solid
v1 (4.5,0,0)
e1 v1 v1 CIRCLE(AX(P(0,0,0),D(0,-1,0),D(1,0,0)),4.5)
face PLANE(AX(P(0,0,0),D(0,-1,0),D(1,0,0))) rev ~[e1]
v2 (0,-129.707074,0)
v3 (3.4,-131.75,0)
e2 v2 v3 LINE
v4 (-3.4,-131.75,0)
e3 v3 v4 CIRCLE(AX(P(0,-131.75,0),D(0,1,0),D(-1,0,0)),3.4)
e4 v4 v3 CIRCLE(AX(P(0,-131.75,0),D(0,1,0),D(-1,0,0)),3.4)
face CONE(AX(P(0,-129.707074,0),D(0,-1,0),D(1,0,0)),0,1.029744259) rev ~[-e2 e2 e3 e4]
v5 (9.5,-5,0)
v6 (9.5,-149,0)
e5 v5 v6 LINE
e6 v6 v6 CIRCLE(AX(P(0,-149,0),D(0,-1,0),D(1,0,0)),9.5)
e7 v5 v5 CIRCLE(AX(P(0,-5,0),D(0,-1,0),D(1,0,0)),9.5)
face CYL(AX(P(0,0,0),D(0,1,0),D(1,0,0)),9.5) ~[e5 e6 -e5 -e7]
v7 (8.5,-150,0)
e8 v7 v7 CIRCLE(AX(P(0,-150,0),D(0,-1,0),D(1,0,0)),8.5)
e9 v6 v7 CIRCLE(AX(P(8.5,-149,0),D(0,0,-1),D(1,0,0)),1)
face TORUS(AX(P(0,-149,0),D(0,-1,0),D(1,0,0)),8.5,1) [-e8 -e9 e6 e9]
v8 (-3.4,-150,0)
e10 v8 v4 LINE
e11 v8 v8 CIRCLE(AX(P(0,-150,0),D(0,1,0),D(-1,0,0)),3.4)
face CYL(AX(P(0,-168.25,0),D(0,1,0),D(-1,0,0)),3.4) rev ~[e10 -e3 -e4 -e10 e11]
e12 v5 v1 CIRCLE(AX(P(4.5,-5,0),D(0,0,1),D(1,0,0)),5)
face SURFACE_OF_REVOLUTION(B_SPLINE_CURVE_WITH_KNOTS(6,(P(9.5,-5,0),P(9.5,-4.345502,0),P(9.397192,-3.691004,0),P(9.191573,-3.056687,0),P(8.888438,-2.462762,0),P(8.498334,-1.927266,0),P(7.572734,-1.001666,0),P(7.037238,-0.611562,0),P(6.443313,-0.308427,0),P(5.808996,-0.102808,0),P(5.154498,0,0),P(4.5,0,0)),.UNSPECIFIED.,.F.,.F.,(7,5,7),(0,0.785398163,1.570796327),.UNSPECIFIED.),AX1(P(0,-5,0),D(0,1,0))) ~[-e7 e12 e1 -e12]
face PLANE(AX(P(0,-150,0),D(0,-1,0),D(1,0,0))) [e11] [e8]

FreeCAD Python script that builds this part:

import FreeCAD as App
import Part
import Sketcher
from FreeCAD import Vector


def edges_at(feature, points):
    """Names of the edges that pass closest to the given points."""
    edges = feature.Shape.Edges
    near = lambda p: min(range(len(edges)), key=lambda i: edges[i].distToShape(Part.Vertex(*p))[0])
    return sorted({f"Edge{near(p) + 1}" for p in points})

doc = App.newDocument("Part")
body = doc.addObject("PartDesign::Body", "Body")

# Sketch on XZ plane
sketch1 = doc.addObject("Sketcher::SketchObject", "Sketch")
body.addObject(sketch1)
sketch1.AttachmentSupport = (doc.XZ_Plane, [""])
sketch1.MapMode = "FlatFace"
sketch1.addGeometry(Part.Circle(Vector(0, 0, 0), Vector(0, 0, 1), 9.5), False)
sketch1.addConstraint(Sketcher.Constraint("Coincident", 0, 3, -1, 1))
sketch1.addConstraint(Sketcher.Constraint("Diameter", 0, 19.0))
pad1 = doc.addObject("PartDesign::Pad", "Pad")
body.addObject(pad1)
pad1.Profile = sketch1
pad1.Length = 150

# Sketch on XZ plane
sketch2 = doc.addObject("Sketcher::SketchObject", "Sketch001")
body.addObject(sketch2)
sketch2.AttachmentSupport = (doc.XZ_Plane, [""])
sketch2.MapMode = "FlatFace"
sketch2.AttachmentOffset = App.Placement(Vector(0, 0, 150), App.Rotation())
sketch2.addGeometry(Part.Circle(Vector(0, 0, 0), Vector(0, 0, 1), 3.4), False)
sketch2.addConstraint(Sketcher.Constraint("Coincident", 0, 3, -1, 1))
sketch2.addConstraint(Sketcher.Constraint("Diameter", 0, 6.8))
doc.recompute()
hole = doc.addObject("PartDesign::Hole", "Hole")
body.addObject(hole)
hole.Profile = sketch2
hole.ThreadType = "None"
hole.Diameter = 6.8
hole.DepthType = "Dimension"
hole.Depth = 18.25
hole.DrillPoint = "Angled"
hole.DrillPointAngle = 118
doc.recompute()

fillet = doc.addObject("PartDesign::Fillet", "Fillet")
body.addObject(fillet)
fillet.Base = (hole, edges_at(hole, [(-9.5, -150, 0)]))
fillet.Radius = 1
doc.recompute()

fillet2 = doc.addObject("PartDesign::Fillet", "Fillet001")
body.addObject(fillet2)
fillet2.Base = (fillet, edges_at(fillet, [(9.5, -74.5, 0), (-9.5, -149, 0), (-9.5, 0, 0)]))
fillet2.Radius = 5

doc.recompute()
